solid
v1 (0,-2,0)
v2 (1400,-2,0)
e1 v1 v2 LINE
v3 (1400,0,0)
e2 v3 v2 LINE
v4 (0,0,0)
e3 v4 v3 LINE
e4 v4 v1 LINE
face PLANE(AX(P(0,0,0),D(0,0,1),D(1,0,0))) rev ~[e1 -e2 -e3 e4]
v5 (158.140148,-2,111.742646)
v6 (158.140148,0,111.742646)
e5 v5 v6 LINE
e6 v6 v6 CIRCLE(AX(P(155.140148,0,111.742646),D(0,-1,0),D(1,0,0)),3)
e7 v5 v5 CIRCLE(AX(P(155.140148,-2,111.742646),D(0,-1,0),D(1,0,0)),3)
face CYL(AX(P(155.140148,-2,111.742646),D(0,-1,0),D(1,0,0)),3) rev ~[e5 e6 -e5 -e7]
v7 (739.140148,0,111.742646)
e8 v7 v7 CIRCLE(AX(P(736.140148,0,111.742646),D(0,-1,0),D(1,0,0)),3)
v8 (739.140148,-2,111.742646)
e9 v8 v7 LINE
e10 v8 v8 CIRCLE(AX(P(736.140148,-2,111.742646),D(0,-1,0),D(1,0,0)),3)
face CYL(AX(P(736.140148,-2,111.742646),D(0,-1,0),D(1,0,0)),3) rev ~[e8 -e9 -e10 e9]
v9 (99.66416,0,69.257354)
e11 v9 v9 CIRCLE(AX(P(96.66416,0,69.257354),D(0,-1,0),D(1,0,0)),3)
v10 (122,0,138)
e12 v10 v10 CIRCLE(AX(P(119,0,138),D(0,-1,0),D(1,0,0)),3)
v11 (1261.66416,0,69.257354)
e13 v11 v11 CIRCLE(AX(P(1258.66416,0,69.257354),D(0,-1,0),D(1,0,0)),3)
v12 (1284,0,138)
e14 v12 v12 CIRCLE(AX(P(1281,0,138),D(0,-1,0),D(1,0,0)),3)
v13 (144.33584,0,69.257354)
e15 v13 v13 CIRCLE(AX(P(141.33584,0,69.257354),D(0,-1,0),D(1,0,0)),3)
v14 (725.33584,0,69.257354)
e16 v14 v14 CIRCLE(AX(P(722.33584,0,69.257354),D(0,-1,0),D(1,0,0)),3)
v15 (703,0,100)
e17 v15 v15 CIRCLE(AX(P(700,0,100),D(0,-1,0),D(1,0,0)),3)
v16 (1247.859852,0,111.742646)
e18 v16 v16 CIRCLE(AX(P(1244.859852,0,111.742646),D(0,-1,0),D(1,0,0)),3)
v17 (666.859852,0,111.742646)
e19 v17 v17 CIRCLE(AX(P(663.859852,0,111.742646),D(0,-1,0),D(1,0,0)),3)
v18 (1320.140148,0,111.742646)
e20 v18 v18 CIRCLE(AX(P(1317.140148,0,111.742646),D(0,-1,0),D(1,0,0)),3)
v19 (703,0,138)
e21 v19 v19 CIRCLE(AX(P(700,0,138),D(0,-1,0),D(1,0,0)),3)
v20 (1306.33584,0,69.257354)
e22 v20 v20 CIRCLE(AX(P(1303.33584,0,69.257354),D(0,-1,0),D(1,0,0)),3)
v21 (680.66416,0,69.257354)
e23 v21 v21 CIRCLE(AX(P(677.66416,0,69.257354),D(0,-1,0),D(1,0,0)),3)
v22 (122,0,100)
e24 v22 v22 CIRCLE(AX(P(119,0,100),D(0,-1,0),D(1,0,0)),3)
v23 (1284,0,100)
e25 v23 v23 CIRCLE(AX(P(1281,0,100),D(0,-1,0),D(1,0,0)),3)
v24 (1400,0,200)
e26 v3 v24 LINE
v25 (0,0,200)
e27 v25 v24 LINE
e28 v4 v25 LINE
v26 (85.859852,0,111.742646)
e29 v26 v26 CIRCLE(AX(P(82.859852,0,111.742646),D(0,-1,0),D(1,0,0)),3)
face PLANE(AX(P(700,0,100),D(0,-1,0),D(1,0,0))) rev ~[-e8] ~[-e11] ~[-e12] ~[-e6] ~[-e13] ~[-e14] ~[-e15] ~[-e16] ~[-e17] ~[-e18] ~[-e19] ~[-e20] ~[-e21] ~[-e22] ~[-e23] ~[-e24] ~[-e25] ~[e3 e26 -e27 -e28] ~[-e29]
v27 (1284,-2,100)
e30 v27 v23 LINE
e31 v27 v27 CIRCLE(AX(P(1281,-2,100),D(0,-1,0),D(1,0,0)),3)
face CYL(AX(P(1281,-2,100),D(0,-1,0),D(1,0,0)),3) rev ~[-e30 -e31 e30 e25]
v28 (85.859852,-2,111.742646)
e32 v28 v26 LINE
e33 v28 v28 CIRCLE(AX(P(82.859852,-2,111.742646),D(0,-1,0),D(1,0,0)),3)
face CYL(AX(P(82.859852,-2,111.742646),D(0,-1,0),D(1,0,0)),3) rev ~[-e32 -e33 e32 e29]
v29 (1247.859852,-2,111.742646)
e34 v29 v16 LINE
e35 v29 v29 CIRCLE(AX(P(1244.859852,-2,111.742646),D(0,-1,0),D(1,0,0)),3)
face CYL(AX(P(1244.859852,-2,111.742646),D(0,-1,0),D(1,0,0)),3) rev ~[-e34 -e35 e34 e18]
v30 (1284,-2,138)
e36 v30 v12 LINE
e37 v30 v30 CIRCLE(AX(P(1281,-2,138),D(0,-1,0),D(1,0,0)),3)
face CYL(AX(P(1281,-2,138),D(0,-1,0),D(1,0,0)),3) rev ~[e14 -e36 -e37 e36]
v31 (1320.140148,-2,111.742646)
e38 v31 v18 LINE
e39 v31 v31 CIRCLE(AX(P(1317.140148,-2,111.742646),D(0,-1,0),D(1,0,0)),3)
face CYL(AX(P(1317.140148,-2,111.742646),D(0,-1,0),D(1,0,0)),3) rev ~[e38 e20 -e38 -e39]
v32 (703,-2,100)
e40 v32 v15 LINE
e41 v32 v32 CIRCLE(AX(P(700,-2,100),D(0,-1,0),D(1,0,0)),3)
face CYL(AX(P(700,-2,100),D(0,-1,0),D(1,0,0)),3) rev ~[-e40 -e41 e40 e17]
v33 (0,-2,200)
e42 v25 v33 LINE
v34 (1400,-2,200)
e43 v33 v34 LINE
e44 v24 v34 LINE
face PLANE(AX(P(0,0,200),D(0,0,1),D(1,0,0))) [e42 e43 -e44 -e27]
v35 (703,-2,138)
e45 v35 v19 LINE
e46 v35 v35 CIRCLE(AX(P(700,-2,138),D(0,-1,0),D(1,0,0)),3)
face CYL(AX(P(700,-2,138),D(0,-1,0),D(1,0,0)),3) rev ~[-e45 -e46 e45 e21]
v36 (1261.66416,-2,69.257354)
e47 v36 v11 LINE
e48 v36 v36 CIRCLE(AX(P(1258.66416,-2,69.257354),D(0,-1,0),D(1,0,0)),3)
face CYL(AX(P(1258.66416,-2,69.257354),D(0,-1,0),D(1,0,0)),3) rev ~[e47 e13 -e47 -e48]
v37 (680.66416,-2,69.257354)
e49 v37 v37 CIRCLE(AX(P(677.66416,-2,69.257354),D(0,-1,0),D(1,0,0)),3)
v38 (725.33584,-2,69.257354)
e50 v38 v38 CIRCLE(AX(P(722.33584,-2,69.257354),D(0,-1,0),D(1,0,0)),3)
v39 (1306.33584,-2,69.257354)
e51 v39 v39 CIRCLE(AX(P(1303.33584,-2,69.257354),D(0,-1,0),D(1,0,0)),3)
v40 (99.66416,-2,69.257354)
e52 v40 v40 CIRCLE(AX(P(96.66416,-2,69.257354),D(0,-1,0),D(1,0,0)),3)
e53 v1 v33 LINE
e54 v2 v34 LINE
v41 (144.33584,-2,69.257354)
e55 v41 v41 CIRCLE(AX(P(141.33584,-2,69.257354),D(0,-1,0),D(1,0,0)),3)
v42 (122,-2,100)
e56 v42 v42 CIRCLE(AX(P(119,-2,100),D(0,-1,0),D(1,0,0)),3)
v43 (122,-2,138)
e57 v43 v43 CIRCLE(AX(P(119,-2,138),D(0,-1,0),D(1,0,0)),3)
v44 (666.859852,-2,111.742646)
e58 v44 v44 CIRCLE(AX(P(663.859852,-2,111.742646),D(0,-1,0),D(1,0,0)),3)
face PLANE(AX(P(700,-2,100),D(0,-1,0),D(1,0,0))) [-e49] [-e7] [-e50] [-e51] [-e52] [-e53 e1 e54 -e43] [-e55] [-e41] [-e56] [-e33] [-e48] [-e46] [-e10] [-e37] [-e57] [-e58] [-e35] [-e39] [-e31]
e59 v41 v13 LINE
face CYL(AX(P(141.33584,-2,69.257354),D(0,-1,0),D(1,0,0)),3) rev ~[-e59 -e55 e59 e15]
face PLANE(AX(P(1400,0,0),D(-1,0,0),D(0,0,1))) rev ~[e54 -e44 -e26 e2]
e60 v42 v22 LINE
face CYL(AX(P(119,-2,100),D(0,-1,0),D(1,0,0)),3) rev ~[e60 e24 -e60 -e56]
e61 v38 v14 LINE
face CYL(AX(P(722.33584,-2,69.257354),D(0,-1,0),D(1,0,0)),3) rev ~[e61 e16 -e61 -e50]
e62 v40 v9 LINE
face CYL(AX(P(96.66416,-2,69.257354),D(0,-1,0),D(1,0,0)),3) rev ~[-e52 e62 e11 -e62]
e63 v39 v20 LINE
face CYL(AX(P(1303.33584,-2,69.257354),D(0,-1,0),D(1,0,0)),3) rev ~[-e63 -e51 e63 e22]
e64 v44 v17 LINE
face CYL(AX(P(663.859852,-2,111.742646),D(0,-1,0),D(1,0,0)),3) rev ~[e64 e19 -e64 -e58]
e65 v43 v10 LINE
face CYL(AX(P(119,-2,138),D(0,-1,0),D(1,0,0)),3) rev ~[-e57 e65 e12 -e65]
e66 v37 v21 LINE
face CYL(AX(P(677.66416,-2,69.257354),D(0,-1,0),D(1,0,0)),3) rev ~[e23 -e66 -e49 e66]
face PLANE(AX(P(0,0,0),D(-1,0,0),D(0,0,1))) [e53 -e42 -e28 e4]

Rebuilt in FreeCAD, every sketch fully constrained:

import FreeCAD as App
import Part
import Sketcher

V = App.Vector
Q = App.Units.Quantity


def add_polygon(sketch, points):
    """Adds a closed chain of lines whose ends are joined by coincident constraints."""
    first, n = sketch.GeometryCount, len(points)
    for a, b in zip(points, points[1:] + points[:1]):
        sketch.addGeometry(Part.LineSegment(App.Vector(*a, 0), App.Vector(*b, 0)), False)
    for i in range(n):
        sketch.addConstraint(Sketcher.Constraint("Coincident", first + i, 2, first + (i + 1) % n, 1))

doc = App.newDocument("Part")
body = doc.addObject("PartDesign::Body", "Body")

sketch1 = doc.addObject("Sketcher::SketchObject", "Sketch")
body.addObject(sketch1)
sketch1.AttachmentSupport = (doc.XZ_Plane, [""])
sketch1.MapMode = "FlatFace"
add_polygon(sketch1, [(0, 200), (0, 0), (1400, 0), (1400, 200)])
sketch1.addConstraint(Sketcher.Constraint("Vertical", 0))
sketch1.addConstraint(Sketcher.Constraint("Horizontal", 1))
sketch1.addConstraint(Sketcher.Constraint("Vertical", 2))
sketch1.addConstraint(Sketcher.Constraint("Horizontal", 3))
sketch1.addConstraint(Sketcher.Constraint("Coincident", 0, 2, -1, 1))
sketch1.addConstraint(Sketcher.Constraint("DistanceX", 1, 1, 1, 2, Q("1400 mm")))
sketch1.addConstraint(Sketcher.Constraint("DistanceY", 0, 2, 0, 1, Q("200 mm")))
pad1 = doc.addObject("PartDesign::Pad", "Pad")
body.addObject(pad1)
pad1.Profile = sketch1
pad1.Length = 2

sketch2 = doc.addObject("Sketcher::SketchObject", "Sketch001")
body.addObject(sketch2)
sketch2.AttachmentSupport = (doc.XZ_Plane, [""])
sketch2.MapMode = "FlatFace"
sketch2.AttachmentOffset = App.Placement(V(0, 0, 2), App.Rotation())
sketch2.addGeometry(Part.Circle(V(700, 100, 0), V(0, 0, 1), 3), False)
sketch2.addGeometry(Part.Circle(V(700, 138, 0), V(0, 0, 1), 3), False)
sketch2.addGeometry(Part.Circle(V(663.9, 111.7, 0), V(0, 0, 1), 3), False)
sketch2.addGeometry(Part.Circle(V(677.7, 69.3, 0), V(0, 0, 1), 3), False)
sketch2.addGeometry(Part.Circle(V(722.3, 69.3, 0), V(0, 0, 1), 3), False)
sketch2.addGeometry(Part.Circle(V(736.1, 111.7, 0), V(0, 0, 1), 3), False)
sketch2.addGeometry(Part.Circle(V(119, 138, 0), V(0, 0, 1), 3), False)
sketch2.addGeometry(Part.Circle(V(82.9, 111.7, 0), V(0, 0, 1), 3), False)
sketch2.addGeometry(Part.Circle(V(96.7, 69.3, 0), V(0, 0, 1), 3), False)
sketch2.addGeometry(Part.Circle(V(155.1, 111.7, 0), V(0, 0, 1), 3), False)
sketch2.addGeometry(Part.Circle(V(119, 100, 0), V(0, 0, 1), 3), False)
sketch2.addGeometry(Part.Circle(V(141.3, 69.3, 0), V(0, 0, 1), 3), False)
sketch2.addGeometry(Part.Circle(V(1317.1, 111.7, 0), V(0, 0, 1), 3), False)
sketch2.addGeometry(Part.Circle(V(1303.3, 69.3, 0), V(0, 0, 1), 3), False)
sketch2.addGeometry(Part.Circle(V(1258.7, 69.3, 0), V(0, 0, 1), 3), False)
sketch2.addGeometry(Part.Circle(V(1244.9, 111.7, 0), V(0, 0, 1), 3), False)
sketch2.addGeometry(Part.Circle(V(1281, 100, 0), V(0, 0, 1), 3), False)
sketch2.addGeometry(Part.Circle(V(1281, 138, 0), V(0, 0, 1), 3), False)
sketch2.addConstraint(Sketcher.Constraint("Equal", 0, 1))
sketch2.addConstraint(Sketcher.Constraint("Equal", 1, 2))
sketch2.addConstraint(Sketcher.Constraint("Equal", 2, 3))
sketch2.addConstraint(Sketcher.Constraint("Equal", 3, 4))
sketch2.addConstraint(Sketcher.Constraint("Equal", 4, 5))
sketch2.addConstraint(Sketcher.Constraint("Equal", 5, 6))
sketch2.addConstraint(Sketcher.Constraint("Equal", 6, 7))
sketch2.addConstraint(Sketcher.Constraint("Equal", 7, 8))
sketch2.addConstraint(Sketcher.Constraint("Equal", 8, 9))
sketch2.addConstraint(Sketcher.Constraint("Equal", 9, 10))
sketch2.addConstraint(Sketcher.Constraint("Equal", 10, 11))
sketch2.addConstraint(Sketcher.Constraint("Equal", 11, 12))
sketch2.addConstraint(Sketcher.Constraint("Equal", 12, 13))
sketch2.addConstraint(Sketcher.Constraint("Equal", 13, 14))
sketch2.addConstraint(Sketcher.Constraint("Equal", 14, 15))
sketch2.addConstraint(Sketcher.Constraint("Equal", 15, 16))
sketch2.addConstraint(Sketcher.Constraint("Equal", 16, 17))
sketch2.addConstraint(Sketcher.Constraint("Horizontal", 3, 3, 4, 3))
sketch2.addConstraint(Sketcher.Constraint("Horizontal", 2, 3, 5, 3))
sketch2.addConstraint(Sketcher.Constraint("Horizontal", 1, 3, 6, 3))
sketch2.addConstraint(Sketcher.Constraint("Horizontal", 5, 3, 7, 3))
sketch2.addConstraint(Sketcher.Constraint("Horizontal", 4, 3, 8, 3))
sketch2.addConstraint(Sketcher.Constraint("Horizontal", 7, 3, 9, 3))
sketch2.addConstraint(Sketcher.Constraint("Horizontal", 0, 3, 10, 3))
sketch2.addConstraint(Sketcher.Constraint("Horizontal", 8, 3, 11, 3))
sketch2.addConstraint(Sketcher.Constraint("Horizontal", 9, 3, 12, 3))
sketch2.addConstraint(Sketcher.Constraint("Horizontal", 11, 3, 13, 3))
sketch2.addConstraint(Sketcher.Constraint("Horizontal", 13, 3, 14, 3))
sketch2.addConstraint(Sketcher.Constraint("Horizontal", 12, 3, 15, 3))
sketch2.addConstraint(Sketcher.Constraint("Horizontal", 10, 3, 16, 3))
sketch2.addConstraint(Sketcher.Constraint("Horizontal", 6, 3, 17, 3))
sketch2.addConstraint(Sketcher.Constraint("Vertical", 0, 3, 1, 3))
sketch2.addConstraint(Sketcher.Constraint("Vertical", 6, 3, 10, 3))
sketch2.addConstraint(Sketcher.Constraint("Vertical", 16, 3, 17, 3))
sketch2.addConstraint(Sketcher.Constraint("Diameter", 0, Q("6 mm")))
sketch2.addConstraint(Sketcher.Constraint("DistanceX", -1, 1, 0, 3, Q("700 mm")))
sketch2.addConstraint(Sketcher.Constraint("DistanceY", -1, 1, 0, 3, Q("100 mm")))
sketch2.addConstraint(Sketcher.Constraint("DistanceY", -1, 1, 1, 3, Q("138 mm")))
sketch2.addConstraint(Sketcher.Constraint("DistanceX", -1, 1, 6, 3, Q("119 mm")))
sketch2.addConstraint(Sketcher.Constraint("DistanceX", -1, 1, 16, 3, Q("1281 mm")))
sketch2.addConstraint(Sketcher.Constraint("DistanceX", 7, 3, 2, 3, Q("581 mm")))
sketch2.addConstraint(Sketcher.Constraint("DistanceX", 8, 3, 3, 3, Q("581 mm")))
sketch2.addConstraint(Sketcher.Constraint("DistanceX", 5, 3, 12, 3, Q("581 mm")))
sketch2.addConstraint(Sketcher.Constraint("DistanceX", 4, 3, 13, 3, Q("581 mm")))
sketch2.addConstraint(Sketcher.Constraint("DistanceX", -1, 1, 2, 3, Q("663.859852 mm")))
sketch2.addConstraint(Sketcher.Constraint("DistanceX", -1, 1, 3, 3, Q("677.66416 mm")))
sketch2.addConstraint(Sketcher.Constraint("DistanceX", -1, 1, 4, 3, Q("722.33584 mm")))
sketch2.addConstraint(Sketcher.Constraint("DistanceX", -1, 1, 5, 3, Q("736.140148 mm")))
sketch2.addConstraint(Sketcher.Constraint("DistanceX", -1, 1, 9, 3, Q("155.140148 mm")))
sketch2.addConstraint(Sketcher.Constraint("DistanceX", -1, 1, 11, 3, Q("141.33584 mm")))
sketch2.addConstraint(Sketcher.Constraint("DistanceX", -1, 1, 14, 3, Q("1258.66416 mm")))
sketch2.addConstraint(Sketcher.Constraint("DistanceX", -1, 1, 15, 3, Q("1244.859852 mm")))
sketch2.addConstraint(Sketcher.Constraint("DistanceY", 3, 3, 2, 3, Q("42.485292 mm")))
sketch2.addConstraint(Sketcher.Constraint("DistanceY", -1, 1, 2, 3, Q("111.742646 mm")))
pocket1 = doc.addObject("PartDesign::Pocket", "Pocket")
body.addObject(pocket1)
pocket1.Profile = sketch2
pocket1.Type = "ThroughAll"

doc.recompute()
